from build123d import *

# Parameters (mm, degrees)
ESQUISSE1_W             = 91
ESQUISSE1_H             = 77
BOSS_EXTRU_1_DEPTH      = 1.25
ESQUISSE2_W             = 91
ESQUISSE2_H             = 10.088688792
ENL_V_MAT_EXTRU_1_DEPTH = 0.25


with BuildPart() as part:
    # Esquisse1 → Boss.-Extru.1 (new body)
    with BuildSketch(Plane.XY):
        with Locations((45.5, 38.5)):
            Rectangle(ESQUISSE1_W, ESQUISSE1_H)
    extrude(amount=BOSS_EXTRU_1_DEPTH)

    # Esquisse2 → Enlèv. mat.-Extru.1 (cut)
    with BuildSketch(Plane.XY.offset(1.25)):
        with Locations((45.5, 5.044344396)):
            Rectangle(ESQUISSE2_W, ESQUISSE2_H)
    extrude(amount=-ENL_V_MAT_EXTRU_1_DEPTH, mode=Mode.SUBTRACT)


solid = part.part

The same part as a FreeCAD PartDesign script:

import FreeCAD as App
import Part
import Sketcher

V = App.Vector
Q = App.Units.Quantity

doc = App.newDocument("Part")
body = doc.addObject("PartDesign::Body", "Body")

sketch1 = body.newObject("Sketcher::SketchObject", "Sketch")
sketch1.AttachmentSupport = (doc.getObject("XY_Plane"), [""])
sketch1.MapMode = "FlatFace"
sketch1.addGeometry(Part.LineSegment(V(0, 77, 0), V(0, 0, 0)), False)
sketch1.addGeometry(Part.LineSegment(V(0, 0, 0), V(91, 0, 0)), False)
sketch1.addGeometry(Part.LineSegment(V(91, 0, 0), V(91, 77, 0)), False)
sketch1.addGeometry(Part.LineSegment(V(91, 77, 0), V(0, 77, 0)), False)
sketch1.addConstraint(Sketcher.Constraint("Coincident", 0, 2, 1, 1))
sketch1.addConstraint(Sketcher.Constraint("Coincident", 1, 2, 2, 1))
sketch1.addConstraint(Sketcher.Constraint("Coincident", 2, 2, 3, 1))
sketch1.addConstraint(Sketcher.Constraint("Coincident", 3, 2, 0, 1))
sketch1.addConstraint(Sketcher.Constraint("Vertical", 0))
sketch1.addConstraint(Sketcher.Constraint("Horizontal", 1))
sketch1.addConstraint(Sketcher.Constraint("Vertical", 2))
sketch1.addConstraint(Sketcher.Constraint("Horizontal", 3))
sketch1.addConstraint(Sketcher.Constraint("Coincident", 0, 2, -1, 1))
sketch1.addConstraint(Sketcher.Constraint("DistanceX", 1, 1, 1, 2, Q("91 mm")))
sketch1.addConstraint(Sketcher.Constraint("DistanceY", 0, 2, 0, 1, Q("77 mm")))
pad1 = body.newObject("PartDesign::Pad", "Pad")
pad1.Profile = sketch1
pad1.Length = 1.25

sketch2 = body.newObject("Sketcher::SketchObject", "Sketch001")
sketch2.AttachmentSupport = (doc.getObject("XY_Plane"), [""])
sketch2.MapMode = "FlatFace"
sketch2.AttachmentOffset = App.Placement(V(0, 0, 1.25), App.Rotation())
sketch2.addGeometry(Part.LineSegment(V(0, 10, 0), V(0, 0, 0)), False)
sketch2.addGeometry(Part.LineSegment(V(0, 0, 0), V(91, 0, 0)), False)
sketch2.addGeometry(Part.LineSegment(V(91, 0, 0), V(91, 10, 0)), False)
sketch2.addGeometry(Part.LineSegment(V(91, 10, 0), V(0, 10, 0)), False)
sketch2.addConstraint(Sketcher.Constraint("Coincident", 0, 2, 1, 1))
sketch2.addConstraint(Sketcher.Constraint("Coincident", 1, 2, 2, 1))
sketch2.addConstraint(Sketcher.Constraint("Coincident", 2, 2, 3, 1))
sketch2.addConstraint(Sketcher.Constraint("Coincident", 3, 2, 0, 1))
sketch2.addConstraint(Sketcher.Constraint("Vertical", 0))
sketch2.addConstraint(Sketcher.Constraint("Horizontal", 1))
sketch2.addConstraint(Sketcher.Constraint("Vertical", 2))
sketch2.addConstraint(Sketcher.Constraint("Horizontal", 3))
sketch2.addConstraint(Sketcher.Constraint("Coincident", 0, 2, -1, 1))
sketch2.addConstraint(Sketcher.Constraint("DistanceX", 1, 1, 1, 2, Q("91 mm")))
sketch2.addConstraint(Sketcher.Constraint("DistanceY", 0, 2, 0, 1, Q("10.088689 mm")))
pocket1 = body.newObject("PartDesign::Pocket", "Pocket")
pocket1.Profile = sketch2
pocket1.Length = 0.25

doc.recompute()
